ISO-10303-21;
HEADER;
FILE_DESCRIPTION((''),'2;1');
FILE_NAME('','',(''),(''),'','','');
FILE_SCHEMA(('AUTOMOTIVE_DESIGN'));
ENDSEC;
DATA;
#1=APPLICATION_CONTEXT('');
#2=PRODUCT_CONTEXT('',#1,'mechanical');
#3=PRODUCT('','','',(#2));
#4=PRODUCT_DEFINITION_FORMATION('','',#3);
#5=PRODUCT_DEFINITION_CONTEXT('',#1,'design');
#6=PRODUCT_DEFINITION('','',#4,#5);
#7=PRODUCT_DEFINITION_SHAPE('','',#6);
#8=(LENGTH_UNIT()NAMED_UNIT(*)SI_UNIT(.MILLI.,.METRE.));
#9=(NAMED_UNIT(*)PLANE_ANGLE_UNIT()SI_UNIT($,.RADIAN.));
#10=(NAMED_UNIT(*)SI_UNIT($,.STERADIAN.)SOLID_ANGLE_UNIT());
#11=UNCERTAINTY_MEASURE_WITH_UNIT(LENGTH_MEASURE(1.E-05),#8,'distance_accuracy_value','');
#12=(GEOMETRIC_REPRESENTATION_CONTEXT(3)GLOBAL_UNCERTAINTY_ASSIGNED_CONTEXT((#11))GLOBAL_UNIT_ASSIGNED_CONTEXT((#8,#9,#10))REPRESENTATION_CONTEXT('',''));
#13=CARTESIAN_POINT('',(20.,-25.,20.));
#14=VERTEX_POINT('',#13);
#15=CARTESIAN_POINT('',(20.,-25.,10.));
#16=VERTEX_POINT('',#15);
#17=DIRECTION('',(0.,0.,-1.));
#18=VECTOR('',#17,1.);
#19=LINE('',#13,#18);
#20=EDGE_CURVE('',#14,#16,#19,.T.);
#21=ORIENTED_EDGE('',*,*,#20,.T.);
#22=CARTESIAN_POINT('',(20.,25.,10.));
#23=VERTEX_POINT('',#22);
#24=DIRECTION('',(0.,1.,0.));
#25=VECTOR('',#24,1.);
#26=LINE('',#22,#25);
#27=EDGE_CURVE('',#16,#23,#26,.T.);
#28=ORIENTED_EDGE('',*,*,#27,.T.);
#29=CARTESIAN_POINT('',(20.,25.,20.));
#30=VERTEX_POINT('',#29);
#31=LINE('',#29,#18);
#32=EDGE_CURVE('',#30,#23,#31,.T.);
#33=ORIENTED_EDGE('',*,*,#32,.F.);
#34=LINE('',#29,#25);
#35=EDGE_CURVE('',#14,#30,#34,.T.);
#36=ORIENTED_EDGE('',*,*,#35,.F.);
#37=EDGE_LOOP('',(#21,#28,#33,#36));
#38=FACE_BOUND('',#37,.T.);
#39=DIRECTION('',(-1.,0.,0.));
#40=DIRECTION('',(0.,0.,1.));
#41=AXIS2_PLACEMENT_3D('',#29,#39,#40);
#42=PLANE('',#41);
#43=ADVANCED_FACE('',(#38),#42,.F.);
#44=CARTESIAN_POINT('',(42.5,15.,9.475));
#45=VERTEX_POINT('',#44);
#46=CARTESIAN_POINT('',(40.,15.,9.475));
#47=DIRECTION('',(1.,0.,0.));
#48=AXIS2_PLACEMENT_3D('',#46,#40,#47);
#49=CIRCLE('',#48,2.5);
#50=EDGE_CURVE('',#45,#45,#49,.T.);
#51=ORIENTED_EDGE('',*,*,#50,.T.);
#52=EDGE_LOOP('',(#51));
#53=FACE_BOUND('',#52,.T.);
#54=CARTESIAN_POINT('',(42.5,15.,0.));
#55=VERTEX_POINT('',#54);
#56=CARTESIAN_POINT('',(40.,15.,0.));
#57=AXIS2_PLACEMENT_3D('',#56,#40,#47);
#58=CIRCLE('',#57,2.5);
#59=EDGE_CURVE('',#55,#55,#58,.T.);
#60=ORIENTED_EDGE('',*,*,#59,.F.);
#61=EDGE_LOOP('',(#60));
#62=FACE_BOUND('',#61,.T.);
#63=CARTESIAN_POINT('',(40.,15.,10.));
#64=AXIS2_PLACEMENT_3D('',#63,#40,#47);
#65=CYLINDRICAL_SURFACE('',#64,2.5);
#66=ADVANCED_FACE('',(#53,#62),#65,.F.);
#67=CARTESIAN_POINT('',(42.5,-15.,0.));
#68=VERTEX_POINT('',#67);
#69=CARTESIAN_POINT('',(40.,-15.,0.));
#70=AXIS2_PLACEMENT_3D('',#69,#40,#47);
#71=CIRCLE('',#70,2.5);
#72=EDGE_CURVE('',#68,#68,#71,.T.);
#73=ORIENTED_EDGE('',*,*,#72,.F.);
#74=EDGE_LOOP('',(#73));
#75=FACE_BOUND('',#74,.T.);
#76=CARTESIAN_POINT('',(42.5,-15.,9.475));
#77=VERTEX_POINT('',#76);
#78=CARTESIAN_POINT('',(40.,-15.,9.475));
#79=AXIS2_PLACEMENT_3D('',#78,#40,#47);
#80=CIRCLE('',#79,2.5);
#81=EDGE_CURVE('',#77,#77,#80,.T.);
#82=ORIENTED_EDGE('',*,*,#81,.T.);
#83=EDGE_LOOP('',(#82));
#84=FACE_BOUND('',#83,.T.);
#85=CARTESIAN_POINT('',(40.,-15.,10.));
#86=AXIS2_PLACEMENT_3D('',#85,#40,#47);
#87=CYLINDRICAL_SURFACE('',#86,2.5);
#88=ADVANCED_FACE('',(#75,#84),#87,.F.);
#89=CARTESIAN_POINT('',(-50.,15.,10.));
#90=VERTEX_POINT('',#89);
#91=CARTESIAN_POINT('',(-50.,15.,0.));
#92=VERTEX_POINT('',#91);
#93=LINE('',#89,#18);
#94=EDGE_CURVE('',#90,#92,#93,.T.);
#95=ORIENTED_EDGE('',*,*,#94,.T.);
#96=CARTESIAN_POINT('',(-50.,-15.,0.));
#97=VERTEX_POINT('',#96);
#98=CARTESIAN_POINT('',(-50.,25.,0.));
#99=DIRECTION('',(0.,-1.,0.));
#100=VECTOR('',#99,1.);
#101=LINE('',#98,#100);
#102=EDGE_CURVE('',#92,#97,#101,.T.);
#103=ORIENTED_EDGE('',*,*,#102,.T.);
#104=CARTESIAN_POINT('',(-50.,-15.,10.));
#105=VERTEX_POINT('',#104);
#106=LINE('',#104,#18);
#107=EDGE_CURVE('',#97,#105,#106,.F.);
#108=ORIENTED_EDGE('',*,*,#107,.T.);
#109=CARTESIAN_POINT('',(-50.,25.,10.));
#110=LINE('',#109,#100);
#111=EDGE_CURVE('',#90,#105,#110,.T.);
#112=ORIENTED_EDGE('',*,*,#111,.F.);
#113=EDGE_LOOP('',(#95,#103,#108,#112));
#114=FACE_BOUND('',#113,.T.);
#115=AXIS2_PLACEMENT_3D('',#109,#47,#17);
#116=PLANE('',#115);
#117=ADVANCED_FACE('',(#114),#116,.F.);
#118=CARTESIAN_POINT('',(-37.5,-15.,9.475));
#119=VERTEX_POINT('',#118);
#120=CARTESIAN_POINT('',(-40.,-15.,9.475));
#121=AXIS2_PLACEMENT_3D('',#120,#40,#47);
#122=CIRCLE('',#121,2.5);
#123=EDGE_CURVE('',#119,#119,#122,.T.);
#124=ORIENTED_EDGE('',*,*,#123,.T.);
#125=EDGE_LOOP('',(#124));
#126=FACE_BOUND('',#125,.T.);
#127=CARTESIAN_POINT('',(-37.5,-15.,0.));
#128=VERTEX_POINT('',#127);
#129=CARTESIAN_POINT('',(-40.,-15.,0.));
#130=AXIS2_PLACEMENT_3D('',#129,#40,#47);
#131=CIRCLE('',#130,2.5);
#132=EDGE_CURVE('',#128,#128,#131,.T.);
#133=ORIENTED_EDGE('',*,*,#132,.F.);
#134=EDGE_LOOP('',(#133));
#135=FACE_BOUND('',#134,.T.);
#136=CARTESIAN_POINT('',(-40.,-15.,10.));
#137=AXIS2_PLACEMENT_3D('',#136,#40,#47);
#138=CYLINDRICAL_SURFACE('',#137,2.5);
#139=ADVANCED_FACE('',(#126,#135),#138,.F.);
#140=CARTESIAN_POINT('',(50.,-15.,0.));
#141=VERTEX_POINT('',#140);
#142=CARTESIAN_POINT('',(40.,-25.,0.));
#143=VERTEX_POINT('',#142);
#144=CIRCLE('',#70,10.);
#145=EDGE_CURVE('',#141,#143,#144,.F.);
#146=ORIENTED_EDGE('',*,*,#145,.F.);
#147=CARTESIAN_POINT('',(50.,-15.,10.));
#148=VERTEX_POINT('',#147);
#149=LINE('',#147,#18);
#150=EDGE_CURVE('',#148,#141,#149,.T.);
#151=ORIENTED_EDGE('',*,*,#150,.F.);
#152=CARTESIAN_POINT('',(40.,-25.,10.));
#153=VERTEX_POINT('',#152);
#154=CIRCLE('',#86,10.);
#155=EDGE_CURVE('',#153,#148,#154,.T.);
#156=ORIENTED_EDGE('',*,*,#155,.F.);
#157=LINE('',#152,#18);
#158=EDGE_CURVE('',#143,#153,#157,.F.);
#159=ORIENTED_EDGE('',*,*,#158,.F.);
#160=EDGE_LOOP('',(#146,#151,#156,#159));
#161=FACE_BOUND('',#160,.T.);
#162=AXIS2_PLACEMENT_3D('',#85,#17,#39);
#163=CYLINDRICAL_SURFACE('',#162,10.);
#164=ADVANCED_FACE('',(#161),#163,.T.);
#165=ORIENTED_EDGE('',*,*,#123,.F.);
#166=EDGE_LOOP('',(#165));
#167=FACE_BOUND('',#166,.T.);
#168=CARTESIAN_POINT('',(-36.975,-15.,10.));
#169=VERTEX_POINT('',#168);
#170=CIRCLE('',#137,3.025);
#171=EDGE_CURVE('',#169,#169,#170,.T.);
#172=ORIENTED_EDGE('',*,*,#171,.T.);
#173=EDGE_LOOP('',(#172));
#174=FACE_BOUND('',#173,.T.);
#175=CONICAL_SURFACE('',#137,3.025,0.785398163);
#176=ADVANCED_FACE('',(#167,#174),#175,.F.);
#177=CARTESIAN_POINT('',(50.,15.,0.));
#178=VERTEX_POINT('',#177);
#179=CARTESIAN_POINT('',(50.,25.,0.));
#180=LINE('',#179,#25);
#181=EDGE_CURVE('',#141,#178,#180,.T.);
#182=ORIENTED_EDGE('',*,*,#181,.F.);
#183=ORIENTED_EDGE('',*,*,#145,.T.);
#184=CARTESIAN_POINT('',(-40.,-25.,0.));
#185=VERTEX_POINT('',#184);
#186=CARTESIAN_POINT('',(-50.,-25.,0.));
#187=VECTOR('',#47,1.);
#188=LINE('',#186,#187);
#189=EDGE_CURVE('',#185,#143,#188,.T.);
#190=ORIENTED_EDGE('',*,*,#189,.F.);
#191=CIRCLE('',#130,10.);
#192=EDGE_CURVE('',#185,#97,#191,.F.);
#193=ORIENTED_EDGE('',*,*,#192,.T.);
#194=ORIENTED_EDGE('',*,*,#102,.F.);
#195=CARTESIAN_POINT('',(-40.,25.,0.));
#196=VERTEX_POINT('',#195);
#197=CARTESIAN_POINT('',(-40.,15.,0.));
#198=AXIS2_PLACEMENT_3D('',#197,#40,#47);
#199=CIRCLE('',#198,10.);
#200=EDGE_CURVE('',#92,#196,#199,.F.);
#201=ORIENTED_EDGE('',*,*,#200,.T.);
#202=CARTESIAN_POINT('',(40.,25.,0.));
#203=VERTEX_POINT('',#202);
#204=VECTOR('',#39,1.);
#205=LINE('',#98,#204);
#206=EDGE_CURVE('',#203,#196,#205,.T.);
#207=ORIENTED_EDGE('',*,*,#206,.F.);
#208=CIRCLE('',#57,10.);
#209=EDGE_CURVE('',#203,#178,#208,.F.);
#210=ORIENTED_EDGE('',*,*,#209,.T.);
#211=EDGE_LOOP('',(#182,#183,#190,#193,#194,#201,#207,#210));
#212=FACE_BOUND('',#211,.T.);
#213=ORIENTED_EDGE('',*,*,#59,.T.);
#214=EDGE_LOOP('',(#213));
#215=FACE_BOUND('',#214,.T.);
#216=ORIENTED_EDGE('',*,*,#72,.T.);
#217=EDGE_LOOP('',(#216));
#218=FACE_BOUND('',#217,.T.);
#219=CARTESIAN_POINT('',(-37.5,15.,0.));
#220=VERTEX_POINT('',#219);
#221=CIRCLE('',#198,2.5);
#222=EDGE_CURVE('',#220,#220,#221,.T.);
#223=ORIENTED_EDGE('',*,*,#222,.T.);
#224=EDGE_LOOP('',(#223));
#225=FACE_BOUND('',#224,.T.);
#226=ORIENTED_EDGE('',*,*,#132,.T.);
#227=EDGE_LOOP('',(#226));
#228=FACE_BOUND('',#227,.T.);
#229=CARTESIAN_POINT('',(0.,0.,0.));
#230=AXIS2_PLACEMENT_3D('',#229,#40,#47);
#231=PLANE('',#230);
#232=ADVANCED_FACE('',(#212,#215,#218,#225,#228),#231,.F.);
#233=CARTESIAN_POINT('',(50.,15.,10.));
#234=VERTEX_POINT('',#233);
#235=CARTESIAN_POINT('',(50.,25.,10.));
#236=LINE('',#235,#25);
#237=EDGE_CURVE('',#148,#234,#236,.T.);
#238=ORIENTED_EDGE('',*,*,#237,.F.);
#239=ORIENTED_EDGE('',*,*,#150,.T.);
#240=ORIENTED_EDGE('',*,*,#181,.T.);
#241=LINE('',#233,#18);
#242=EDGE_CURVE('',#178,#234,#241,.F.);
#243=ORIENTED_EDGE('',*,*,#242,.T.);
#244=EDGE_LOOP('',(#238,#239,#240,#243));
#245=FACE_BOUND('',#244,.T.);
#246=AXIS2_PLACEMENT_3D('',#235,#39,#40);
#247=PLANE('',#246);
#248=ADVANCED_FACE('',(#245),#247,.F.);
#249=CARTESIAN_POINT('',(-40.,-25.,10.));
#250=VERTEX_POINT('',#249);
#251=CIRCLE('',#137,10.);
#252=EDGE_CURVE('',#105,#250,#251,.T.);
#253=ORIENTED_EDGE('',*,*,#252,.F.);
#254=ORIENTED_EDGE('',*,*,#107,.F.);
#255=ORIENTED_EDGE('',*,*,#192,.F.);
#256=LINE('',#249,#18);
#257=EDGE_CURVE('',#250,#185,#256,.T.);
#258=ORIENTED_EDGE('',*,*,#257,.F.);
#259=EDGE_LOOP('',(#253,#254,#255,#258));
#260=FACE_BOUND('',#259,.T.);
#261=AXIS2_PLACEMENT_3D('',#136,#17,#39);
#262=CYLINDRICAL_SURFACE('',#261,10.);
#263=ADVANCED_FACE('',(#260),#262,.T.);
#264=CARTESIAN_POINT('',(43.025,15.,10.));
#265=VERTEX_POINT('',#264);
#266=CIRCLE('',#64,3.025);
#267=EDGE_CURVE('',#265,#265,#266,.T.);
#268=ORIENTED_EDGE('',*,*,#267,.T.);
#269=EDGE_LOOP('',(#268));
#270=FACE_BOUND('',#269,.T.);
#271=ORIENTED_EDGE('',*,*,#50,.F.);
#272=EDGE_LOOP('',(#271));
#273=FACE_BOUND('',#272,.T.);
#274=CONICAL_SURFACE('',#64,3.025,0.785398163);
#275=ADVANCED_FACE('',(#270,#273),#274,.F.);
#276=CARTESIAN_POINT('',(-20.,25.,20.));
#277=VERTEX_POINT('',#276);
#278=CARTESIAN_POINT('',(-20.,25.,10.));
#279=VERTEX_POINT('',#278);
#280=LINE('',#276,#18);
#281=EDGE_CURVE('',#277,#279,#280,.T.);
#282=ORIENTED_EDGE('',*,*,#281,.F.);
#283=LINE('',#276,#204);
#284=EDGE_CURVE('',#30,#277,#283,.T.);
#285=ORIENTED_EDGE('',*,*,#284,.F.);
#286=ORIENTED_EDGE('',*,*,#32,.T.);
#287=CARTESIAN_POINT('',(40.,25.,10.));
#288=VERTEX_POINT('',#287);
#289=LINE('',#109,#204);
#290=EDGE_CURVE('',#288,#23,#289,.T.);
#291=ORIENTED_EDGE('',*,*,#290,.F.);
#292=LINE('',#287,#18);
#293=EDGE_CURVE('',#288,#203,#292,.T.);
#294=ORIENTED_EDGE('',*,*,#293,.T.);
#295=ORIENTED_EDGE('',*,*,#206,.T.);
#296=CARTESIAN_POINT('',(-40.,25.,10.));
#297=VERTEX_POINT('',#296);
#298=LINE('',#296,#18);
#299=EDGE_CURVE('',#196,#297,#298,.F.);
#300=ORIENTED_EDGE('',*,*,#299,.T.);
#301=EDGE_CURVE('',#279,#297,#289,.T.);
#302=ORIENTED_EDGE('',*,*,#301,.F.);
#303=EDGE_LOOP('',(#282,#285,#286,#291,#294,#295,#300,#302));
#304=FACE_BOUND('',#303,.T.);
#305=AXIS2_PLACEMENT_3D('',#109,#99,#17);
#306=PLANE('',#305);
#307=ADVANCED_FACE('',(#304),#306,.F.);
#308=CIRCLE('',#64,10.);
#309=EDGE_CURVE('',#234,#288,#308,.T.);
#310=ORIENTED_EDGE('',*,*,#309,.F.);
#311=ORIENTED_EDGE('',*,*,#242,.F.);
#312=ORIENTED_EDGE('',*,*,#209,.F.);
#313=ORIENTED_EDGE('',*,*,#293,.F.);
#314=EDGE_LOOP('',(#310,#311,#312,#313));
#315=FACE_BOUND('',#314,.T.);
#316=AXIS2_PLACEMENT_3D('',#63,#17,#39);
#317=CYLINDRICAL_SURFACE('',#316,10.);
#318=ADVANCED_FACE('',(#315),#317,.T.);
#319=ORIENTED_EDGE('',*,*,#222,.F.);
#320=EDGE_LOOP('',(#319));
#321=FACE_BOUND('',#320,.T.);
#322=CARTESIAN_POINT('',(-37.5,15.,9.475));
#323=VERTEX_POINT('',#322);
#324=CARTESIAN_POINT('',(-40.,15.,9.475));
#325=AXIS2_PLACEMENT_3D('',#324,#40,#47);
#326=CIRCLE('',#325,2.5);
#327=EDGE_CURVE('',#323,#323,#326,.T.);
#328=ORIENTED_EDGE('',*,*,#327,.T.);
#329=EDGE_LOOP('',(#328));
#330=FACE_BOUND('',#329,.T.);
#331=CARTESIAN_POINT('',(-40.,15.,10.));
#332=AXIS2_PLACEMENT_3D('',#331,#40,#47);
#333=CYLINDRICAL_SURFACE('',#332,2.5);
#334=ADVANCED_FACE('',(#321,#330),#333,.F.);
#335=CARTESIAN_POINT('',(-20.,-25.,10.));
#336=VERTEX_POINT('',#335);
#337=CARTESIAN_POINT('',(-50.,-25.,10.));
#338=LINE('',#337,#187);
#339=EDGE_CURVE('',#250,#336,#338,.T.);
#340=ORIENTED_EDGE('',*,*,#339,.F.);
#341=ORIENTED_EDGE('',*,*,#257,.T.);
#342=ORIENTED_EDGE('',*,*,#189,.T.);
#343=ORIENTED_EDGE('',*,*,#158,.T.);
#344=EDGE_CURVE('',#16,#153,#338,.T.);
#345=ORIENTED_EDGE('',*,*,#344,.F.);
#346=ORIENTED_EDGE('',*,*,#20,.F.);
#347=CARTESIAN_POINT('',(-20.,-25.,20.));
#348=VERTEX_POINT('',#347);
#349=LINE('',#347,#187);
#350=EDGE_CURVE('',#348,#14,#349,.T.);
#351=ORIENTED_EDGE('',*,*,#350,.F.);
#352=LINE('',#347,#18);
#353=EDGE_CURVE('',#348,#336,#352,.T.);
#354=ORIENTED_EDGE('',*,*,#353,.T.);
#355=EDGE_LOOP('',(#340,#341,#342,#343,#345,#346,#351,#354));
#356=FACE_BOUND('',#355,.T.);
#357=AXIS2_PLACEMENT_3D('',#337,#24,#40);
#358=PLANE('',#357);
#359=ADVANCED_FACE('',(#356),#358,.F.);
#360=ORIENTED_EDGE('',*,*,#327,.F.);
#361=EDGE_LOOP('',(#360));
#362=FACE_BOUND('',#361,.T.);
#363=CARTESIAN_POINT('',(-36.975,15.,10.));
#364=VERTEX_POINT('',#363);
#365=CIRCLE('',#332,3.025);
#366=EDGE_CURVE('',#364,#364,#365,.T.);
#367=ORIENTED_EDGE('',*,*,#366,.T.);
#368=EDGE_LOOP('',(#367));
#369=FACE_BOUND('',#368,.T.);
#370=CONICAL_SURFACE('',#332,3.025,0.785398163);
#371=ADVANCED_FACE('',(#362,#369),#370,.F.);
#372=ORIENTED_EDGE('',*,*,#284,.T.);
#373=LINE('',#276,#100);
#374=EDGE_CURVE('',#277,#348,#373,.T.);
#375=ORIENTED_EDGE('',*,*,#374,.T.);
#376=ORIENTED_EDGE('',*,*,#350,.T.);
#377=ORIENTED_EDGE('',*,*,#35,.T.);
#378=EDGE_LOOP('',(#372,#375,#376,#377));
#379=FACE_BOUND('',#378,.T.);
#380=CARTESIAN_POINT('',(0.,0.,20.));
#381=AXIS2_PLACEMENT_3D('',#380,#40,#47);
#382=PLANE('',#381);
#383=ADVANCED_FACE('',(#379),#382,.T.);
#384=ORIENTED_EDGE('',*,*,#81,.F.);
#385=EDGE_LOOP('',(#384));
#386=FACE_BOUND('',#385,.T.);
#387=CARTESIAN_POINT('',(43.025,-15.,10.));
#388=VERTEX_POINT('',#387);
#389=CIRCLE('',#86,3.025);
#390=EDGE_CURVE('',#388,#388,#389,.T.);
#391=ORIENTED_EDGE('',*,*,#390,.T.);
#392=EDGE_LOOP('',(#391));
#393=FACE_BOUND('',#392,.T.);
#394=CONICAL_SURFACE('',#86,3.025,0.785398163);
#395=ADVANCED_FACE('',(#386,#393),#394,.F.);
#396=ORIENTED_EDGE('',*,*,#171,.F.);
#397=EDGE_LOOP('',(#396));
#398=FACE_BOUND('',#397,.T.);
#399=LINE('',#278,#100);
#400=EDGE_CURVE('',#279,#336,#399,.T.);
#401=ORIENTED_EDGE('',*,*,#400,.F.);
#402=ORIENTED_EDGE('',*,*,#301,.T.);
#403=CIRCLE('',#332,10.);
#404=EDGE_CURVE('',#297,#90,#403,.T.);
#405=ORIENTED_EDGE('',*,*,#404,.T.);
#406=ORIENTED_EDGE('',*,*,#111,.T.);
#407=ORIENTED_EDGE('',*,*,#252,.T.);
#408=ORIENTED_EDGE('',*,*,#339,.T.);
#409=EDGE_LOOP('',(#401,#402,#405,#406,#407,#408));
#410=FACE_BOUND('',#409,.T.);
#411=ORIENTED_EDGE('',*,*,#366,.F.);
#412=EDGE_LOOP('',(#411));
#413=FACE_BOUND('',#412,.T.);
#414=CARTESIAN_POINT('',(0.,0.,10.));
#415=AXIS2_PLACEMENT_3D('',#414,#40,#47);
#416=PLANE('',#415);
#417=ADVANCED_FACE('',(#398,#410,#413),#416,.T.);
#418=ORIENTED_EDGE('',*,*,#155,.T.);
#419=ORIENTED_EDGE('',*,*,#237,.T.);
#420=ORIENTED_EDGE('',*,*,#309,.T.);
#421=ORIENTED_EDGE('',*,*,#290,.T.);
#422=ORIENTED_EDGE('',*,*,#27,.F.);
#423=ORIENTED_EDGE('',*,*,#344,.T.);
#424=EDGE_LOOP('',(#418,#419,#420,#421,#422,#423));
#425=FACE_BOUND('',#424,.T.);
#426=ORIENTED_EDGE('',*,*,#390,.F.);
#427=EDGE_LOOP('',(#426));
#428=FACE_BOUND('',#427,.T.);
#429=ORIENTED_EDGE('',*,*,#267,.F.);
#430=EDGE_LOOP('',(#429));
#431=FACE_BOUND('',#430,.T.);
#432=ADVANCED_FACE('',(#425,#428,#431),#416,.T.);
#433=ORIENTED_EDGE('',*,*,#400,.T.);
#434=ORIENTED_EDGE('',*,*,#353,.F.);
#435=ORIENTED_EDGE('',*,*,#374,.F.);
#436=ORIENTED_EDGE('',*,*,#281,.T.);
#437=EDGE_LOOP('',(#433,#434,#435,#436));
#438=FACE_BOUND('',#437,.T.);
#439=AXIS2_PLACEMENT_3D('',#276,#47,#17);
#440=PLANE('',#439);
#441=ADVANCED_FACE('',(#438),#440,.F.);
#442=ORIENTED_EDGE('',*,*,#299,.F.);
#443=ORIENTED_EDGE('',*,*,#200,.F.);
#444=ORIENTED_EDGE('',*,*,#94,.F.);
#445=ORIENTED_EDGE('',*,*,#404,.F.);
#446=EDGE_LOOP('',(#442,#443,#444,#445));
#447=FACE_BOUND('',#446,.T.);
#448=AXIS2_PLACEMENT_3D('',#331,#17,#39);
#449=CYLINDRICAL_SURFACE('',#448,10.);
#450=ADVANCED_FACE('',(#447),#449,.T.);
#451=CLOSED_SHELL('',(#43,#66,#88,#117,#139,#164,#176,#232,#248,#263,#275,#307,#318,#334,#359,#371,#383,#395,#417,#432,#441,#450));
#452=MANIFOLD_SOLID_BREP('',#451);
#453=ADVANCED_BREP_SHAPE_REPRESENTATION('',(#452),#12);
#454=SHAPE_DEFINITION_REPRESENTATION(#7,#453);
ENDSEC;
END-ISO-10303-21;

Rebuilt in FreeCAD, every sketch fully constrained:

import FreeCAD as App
import Part
import Sketcher

V = App.Vector


def edges_at(feature, points):
    """Names of the edges that pass closest to the given points."""
    edges = feature.Shape.Edges
    near = lambda p: min(range(len(edges)), key=lambda i: edges[i].distToShape(Part.Vertex(*p))[0])
    return sorted({f"Edge{near(p) + 1}" for p in points})


def add_polygon(sketch, points):
    """Adds a closed chain of lines whose ends are joined by coincident constraints."""
    first, n = sketch.GeometryCount, len(points)
    for a, b in zip(points, points[1:] + points[:1]):
        sketch.addGeometry(Part.LineSegment(App.Vector(*a, 0), App.Vector(*b, 0)), False)
    for i in range(n):
        sketch.addConstraint(Sketcher.Constraint("Coincident", first + i, 2, first + (i + 1) % n, 1))

doc = App.newDocument("Part")
body = doc.addObject("PartDesign::Body", "Body")

# Sketch on XY plane
sketch1 = doc.addObject("Sketcher::SketchObject", "Sketch")
body.addObject(sketch1)
sketch1.AttachmentSupport = (doc.XY_Plane, [""])
sketch1.MapMode = "FlatFace"
add_polygon(sketch1, [(-50, 25), (-50, -25), (50, -25), (50, 25)])  # lines 0-3
sketch1.addConstraint([
    Sketcher.Constraint("Vertical", 0),
    Sketcher.Constraint("Horizontal", 1),
    Sketcher.Constraint("Vertical", 2),
    Sketcher.Constraint("Horizontal", 3),
    Sketcher.Constraint("Symmetric", 0, 2, 2, 2, -1, 1),
    Sketcher.Constraint("DistanceX", 1, 1, 1, 2, 100.0),
    Sketcher.Constraint("DistanceY", 0, 2, 0, 1, 50.0),
])
pad1 = doc.addObject("PartDesign::Pad", "Pad")
body.addObject(pad1)
pad1.Profile = sketch1
pad1.Length = 10

# Sketch on XY plane
sketch2 = doc.addObject("Sketcher::SketchObject", "Sketch001")
body.addObject(sketch2)
sketch2.AttachmentSupport = (doc.XY_Plane, [""])
sketch2.MapMode = "FlatFace"
sketch2.AttachmentOffset = App.Placement(V(0, 0, 10), App.Rotation())
add_polygon(sketch2, [(-20, 25), (-20, -25), (20, -25), (20, 25)])  # lines 0-3
sketch2.addConstraint([
    Sketcher.Constraint("Vertical", 0),
    Sketcher.Constraint("Horizontal", 1),
    Sketcher.Constraint("Vertical", 2),
    Sketcher.Constraint("Horizontal", 3),
    Sketcher.Constraint("Symmetric", 0, 2, 2, 2, -1, 1),
    Sketcher.Constraint("DistanceX", 1, 1, 1, 2, 40.0),
    Sketcher.Constraint("DistanceY", 0, 2, 0, 1, 50.0),
])
pad2 = doc.addObject("PartDesign::Pad", "Pad001")
body.addObject(pad2)
pad2.Profile = sketch2
pad2.Length = 10
doc.recompute()

fillet = doc.addObject("PartDesign::Fillet", "Fillet")
body.addObject(fillet)
fillet.Base = (pad2, edges_at(pad2, [
    (50, -25, 5),
    (-50, -25, 5),
    (-50, 25, 5),
    (50, 25, 5),
]))
fillet.Radius = 10

# Sketch on XY plane
sketch3 = doc.addObject("Sketcher::SketchObject", "Sketch002")
body.addObject(sketch3)
sketch3.AttachmentSupport = (doc.XY_Plane, [""])
sketch3.MapMode = "FlatFace"
sketch3.AttachmentOffset = App.Placement(V(0, 0, 10), App.Rotation())
sketch3.addGeometry([
    Part.Circle(V(-40, 15, 0), V(0, 0, 1), 2.5),
    Part.Circle(V(-40, -15, 0), V(0, 0, 1), 2.5),
    Part.Circle(V(40, -15, 0), V(0, 0, 1), 2.5),
    Part.Circle(V(40, 15, 0), V(0, 0, 1), 2.5),
], False)
sketch3.addConstraint([
    Sketcher.Constraint("Equal", 0, 1),
    Sketcher.Constraint("Equal", 1, 2),
    Sketcher.Constraint("Equal", 2, 3),
    Sketcher.Constraint("Symmetric", 0, 3, 2, 3, -1, 1),
    Sketcher.Constraint("Symmetric", 1, 3, 3, 3, -1, 1),
    Sketcher.Constraint("Symmetric", 1, 3, 2, 3, -2),
    Sketcher.Constraint("Diameter", 0, 5.0),
    Sketcher.Constraint("DistanceX", 0, 3, -1, 1, 40.0),
    Sketcher.Constraint("DistanceY", -1, 1, 0, 3, 15.0),
])
doc.recompute()
hole = doc.addObject("PartDesign::Hole", "Hole")
body.addObject(hole)
hole.Profile = sketch3
hole.ThreadType = "None"
hole.Diameter = 5
hole.DepthType = "ThroughAll"
hole.HoleCutType = "Countersink"
hole.HoleCutDiameter = 6.05
hole.HoleCutCountersinkAngle = 90

doc.recompute()
